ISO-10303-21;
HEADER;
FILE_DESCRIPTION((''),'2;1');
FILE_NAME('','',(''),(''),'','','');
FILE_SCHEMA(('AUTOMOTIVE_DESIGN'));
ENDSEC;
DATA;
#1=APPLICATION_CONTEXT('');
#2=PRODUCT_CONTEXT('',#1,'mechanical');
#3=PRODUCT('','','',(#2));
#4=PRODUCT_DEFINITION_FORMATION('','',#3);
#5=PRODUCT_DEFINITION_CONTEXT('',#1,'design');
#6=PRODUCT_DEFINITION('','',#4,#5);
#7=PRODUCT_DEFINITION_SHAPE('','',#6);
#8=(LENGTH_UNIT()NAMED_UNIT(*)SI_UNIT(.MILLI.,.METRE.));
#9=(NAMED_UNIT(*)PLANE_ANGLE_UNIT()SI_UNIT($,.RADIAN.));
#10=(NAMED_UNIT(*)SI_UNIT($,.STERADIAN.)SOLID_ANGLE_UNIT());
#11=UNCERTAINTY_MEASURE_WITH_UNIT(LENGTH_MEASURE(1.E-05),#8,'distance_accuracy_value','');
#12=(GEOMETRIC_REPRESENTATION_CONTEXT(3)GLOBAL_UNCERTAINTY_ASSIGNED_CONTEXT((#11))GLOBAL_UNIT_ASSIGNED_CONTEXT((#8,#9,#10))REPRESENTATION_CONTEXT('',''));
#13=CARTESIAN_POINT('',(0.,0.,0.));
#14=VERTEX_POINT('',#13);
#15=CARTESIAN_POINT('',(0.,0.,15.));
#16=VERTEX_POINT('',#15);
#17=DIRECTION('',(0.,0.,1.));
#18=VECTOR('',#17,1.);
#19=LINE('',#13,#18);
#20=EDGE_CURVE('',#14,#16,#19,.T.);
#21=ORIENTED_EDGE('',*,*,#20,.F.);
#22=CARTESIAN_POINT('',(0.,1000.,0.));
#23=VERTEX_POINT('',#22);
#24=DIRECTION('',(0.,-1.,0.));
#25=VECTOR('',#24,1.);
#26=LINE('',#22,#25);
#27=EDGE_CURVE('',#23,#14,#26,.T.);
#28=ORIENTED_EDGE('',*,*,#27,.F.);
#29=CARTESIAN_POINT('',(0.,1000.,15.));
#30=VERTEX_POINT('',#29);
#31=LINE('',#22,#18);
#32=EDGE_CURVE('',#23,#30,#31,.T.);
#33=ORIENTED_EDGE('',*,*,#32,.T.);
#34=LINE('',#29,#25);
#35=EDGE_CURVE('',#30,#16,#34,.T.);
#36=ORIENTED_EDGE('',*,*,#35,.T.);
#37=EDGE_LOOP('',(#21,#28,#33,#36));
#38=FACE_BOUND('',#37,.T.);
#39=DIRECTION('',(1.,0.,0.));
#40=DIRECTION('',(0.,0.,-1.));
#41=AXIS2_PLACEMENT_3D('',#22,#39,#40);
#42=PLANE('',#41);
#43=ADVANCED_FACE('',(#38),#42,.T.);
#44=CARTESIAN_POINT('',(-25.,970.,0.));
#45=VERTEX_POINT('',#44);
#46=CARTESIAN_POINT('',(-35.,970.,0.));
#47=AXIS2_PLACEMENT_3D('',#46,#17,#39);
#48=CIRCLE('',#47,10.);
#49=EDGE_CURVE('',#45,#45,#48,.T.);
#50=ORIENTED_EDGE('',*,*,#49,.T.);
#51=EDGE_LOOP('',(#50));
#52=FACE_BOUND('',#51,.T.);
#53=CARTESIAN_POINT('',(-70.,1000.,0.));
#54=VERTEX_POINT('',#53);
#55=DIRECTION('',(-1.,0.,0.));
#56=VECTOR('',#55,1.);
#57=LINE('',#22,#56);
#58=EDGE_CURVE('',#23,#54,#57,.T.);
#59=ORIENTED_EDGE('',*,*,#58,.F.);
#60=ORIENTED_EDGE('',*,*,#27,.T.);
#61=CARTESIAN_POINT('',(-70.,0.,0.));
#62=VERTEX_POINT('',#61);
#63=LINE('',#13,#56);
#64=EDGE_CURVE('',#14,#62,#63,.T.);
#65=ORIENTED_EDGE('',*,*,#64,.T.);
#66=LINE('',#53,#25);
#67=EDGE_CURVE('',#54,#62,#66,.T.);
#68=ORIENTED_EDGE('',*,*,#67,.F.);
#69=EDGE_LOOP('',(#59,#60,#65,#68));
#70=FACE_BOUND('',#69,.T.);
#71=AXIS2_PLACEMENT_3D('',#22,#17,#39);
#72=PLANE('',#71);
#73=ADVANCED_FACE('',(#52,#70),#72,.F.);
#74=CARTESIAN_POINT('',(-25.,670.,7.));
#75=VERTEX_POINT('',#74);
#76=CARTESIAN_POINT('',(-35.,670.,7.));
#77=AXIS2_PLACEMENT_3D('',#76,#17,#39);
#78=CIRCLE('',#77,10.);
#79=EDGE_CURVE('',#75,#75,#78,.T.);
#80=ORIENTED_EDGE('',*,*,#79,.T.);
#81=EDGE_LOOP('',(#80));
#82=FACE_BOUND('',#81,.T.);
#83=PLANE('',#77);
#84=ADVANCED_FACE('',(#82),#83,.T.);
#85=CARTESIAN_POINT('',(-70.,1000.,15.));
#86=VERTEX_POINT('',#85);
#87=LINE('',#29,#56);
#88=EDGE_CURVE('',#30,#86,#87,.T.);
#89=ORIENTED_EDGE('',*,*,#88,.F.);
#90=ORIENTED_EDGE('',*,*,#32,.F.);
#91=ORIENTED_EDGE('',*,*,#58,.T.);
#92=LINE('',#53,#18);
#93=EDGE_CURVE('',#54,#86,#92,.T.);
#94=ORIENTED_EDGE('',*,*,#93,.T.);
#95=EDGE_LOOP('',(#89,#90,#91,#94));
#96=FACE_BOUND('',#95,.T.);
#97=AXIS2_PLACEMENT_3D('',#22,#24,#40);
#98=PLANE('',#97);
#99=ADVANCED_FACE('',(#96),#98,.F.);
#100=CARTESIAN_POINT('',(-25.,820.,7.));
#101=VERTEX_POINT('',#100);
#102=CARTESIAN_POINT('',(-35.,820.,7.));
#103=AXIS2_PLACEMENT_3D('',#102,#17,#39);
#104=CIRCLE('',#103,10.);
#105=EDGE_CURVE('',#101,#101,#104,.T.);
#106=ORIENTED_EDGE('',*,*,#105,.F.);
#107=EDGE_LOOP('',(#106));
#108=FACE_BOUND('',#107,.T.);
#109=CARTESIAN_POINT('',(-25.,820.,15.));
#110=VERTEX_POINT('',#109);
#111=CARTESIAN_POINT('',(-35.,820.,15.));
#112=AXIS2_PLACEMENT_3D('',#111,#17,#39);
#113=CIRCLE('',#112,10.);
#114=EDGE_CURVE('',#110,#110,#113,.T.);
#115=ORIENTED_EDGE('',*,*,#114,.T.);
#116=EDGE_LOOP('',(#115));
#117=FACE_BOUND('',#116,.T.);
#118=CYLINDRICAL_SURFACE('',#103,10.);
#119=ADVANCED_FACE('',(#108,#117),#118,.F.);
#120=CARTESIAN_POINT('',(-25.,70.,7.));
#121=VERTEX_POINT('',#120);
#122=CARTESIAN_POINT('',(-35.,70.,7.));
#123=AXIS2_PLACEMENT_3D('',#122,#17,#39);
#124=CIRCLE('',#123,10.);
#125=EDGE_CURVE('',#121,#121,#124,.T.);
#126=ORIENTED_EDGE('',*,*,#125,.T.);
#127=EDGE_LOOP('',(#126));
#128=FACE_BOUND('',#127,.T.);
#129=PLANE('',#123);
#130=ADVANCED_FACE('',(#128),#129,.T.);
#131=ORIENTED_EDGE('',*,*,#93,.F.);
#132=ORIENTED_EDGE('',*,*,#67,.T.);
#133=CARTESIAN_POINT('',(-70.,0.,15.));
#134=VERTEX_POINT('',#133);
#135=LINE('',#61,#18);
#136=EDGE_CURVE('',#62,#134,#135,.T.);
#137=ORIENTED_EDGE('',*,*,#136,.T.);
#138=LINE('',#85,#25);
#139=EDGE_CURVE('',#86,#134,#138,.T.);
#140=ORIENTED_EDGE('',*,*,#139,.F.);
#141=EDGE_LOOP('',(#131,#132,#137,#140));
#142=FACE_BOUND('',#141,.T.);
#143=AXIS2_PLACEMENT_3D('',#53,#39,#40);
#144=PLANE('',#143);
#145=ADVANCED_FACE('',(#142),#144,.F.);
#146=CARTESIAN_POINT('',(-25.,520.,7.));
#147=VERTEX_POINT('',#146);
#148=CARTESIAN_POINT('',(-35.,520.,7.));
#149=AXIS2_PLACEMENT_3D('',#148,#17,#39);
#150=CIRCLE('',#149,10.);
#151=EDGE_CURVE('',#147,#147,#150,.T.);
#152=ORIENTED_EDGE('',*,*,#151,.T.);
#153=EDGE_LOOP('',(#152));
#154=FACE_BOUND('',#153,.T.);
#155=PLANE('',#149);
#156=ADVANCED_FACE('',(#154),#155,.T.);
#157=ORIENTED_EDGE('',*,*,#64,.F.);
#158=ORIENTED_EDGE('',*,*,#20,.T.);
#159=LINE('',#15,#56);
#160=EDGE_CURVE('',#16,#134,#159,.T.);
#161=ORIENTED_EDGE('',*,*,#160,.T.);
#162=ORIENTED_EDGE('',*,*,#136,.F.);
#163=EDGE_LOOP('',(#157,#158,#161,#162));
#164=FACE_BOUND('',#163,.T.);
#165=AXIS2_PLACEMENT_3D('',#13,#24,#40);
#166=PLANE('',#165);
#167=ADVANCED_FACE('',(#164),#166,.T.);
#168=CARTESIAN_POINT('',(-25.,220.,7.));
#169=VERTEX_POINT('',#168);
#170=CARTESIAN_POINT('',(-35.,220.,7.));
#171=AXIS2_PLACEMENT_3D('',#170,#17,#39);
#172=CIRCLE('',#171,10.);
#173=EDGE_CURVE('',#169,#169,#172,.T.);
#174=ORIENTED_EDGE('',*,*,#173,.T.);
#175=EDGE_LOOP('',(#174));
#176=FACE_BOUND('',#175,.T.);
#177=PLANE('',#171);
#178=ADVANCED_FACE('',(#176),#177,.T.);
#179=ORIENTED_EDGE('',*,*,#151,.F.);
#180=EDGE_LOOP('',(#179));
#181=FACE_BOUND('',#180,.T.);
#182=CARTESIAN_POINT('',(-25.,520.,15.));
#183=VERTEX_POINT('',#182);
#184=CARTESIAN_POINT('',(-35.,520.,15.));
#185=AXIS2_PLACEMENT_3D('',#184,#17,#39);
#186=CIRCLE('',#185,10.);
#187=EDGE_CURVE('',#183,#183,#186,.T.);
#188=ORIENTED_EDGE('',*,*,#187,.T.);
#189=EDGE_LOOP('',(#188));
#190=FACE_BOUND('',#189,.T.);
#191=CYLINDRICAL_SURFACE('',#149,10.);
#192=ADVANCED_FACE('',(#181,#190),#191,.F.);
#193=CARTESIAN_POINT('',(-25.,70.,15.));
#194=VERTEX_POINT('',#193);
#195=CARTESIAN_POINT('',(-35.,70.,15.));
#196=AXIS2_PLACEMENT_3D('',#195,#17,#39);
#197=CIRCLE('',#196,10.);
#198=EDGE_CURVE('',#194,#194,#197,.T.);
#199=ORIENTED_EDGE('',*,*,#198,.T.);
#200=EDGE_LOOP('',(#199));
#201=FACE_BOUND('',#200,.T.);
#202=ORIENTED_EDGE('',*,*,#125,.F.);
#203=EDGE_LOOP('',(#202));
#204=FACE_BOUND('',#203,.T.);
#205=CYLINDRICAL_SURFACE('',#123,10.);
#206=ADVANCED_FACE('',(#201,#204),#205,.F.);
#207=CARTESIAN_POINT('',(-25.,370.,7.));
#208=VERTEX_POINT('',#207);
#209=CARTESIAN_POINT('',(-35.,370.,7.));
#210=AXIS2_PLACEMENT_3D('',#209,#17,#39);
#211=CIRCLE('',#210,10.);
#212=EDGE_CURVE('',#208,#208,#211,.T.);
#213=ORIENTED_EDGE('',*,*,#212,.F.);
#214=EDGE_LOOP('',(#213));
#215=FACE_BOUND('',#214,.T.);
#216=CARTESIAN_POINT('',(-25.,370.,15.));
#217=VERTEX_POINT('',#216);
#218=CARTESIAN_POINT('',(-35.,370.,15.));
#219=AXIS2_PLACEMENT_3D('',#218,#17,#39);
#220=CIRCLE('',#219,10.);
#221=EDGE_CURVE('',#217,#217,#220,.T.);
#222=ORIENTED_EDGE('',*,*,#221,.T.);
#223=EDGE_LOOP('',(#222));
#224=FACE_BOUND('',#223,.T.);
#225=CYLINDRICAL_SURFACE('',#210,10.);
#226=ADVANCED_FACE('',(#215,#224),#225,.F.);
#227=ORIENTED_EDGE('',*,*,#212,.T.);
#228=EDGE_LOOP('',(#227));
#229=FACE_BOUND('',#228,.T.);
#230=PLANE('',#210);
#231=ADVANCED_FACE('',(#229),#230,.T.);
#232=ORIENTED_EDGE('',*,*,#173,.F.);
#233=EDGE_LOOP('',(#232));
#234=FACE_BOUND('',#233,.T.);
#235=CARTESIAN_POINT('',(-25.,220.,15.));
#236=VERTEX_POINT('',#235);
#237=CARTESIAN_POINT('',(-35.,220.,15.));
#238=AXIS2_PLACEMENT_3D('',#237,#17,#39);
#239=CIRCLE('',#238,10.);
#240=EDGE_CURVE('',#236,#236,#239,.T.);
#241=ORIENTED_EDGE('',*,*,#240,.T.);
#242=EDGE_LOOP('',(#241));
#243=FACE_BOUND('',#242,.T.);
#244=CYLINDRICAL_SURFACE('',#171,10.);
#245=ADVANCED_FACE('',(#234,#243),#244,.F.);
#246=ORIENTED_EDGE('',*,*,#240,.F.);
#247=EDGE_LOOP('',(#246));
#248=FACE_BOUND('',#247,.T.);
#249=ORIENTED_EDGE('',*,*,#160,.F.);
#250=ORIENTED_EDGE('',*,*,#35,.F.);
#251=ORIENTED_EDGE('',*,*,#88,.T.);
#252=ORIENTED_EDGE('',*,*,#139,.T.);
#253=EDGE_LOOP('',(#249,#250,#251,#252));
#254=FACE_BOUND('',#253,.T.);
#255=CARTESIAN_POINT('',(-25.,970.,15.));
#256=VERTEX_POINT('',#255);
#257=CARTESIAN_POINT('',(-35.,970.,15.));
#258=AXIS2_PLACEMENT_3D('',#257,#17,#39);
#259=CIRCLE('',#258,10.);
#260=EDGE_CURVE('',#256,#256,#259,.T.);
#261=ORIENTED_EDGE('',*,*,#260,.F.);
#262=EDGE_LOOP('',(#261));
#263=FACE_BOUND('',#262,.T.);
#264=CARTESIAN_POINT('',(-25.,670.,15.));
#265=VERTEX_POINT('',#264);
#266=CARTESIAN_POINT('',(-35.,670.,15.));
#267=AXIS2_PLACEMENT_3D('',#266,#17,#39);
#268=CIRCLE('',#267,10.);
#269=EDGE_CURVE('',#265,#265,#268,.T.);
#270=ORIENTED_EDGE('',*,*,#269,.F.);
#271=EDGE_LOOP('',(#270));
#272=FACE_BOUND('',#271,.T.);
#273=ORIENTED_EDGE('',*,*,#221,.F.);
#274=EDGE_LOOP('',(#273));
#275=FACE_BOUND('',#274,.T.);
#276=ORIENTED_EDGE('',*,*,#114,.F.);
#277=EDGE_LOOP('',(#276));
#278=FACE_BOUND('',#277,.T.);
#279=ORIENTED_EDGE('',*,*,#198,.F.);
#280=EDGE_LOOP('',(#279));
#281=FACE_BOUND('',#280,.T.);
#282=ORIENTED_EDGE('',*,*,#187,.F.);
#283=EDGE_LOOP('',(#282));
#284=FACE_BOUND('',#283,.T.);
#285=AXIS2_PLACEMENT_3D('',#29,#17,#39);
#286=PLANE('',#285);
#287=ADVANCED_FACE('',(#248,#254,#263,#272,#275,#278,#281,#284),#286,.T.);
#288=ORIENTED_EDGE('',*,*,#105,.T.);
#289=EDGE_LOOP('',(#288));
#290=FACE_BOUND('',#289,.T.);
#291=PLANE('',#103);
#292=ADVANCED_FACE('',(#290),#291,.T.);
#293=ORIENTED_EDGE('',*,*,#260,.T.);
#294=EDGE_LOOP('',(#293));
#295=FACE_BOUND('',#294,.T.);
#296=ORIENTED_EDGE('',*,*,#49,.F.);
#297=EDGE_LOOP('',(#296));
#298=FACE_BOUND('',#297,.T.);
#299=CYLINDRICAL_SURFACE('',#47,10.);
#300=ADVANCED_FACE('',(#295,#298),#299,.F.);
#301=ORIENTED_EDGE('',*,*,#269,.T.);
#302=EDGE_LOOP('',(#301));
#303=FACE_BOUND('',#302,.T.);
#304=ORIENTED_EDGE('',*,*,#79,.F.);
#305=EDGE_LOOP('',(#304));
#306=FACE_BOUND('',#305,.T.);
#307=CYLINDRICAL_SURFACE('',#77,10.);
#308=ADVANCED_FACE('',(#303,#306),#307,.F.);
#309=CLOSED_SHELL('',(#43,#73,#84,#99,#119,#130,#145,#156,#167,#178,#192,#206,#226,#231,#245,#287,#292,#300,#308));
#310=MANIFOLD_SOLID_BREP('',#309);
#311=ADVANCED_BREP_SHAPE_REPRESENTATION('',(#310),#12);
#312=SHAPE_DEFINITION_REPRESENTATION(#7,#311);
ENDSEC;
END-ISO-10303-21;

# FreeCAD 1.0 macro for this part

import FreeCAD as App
import Part
import Sketcher
from FreeCAD import Vector

doc = App.newDocument("Part")
params = doc.addObject("Spreadsheet::Sheet", "Params")
for row, (alias, value) in enumerate([
    ("sketch1_width", "70 mm"),
    ("sketch1_height", "15 mm"),
    ("pad1_length", "1000 mm"),
    ("sketch2_diameter", "20 mm"),
    ("pocket1_length", "15 mm"),
    ("sketch3_diameter", "20 mm"),
    ("pocket2_length", "8 mm"),
], start=1):
    params.set(f"A{row}", alias)
    params.set(f"B{row}", "=" + value)
    params.setAlias(f"B{row}", alias)

body = doc.addObject("PartDesign::Body", "Body")

sketch1 = body.newObject("Sketcher::SketchObject", "Sketch")
sketch1.AttachmentSupport = (doc.getObject("XZ_Plane"), [""])
sketch1.MapMode = "FlatFace"
sketch1.addGeometry(Part.LineSegment(Vector(-70, 0, 0), Vector(-70, 15, 0)), False)
sketch1.addGeometry(Part.LineSegment(Vector(-70, 15, 0), Vector(0, 15, 0)), False)
sketch1.addGeometry(Part.LineSegment(Vector(0, 15, 0), Vector(0, 0, 0)), False)
sketch1.addGeometry(Part.LineSegment(Vector(0, 0, 0), Vector(-70, 0, 0)), False)
sketch1.addConstraint(Sketcher.Constraint("Coincident", 0, 2, 1, 1))
sketch1.addConstraint(Sketcher.Constraint("Coincident", 1, 2, 2, 1))
sketch1.addConstraint(Sketcher.Constraint("Coincident", 2, 2, 3, 1))
sketch1.addConstraint(Sketcher.Constraint("Coincident", 3, 2, 0, 1))
sketch1.addConstraint(Sketcher.Constraint("Vertical", 0))
sketch1.addConstraint(Sketcher.Constraint("Horizontal", 1))
sketch1.addConstraint(Sketcher.Constraint("Vertical", 2))
sketch1.addConstraint(Sketcher.Constraint("Horizontal", 3))
sketch1.addConstraint(Sketcher.Constraint("Coincident", 2, 2, -1, 1))
sketch1.addConstraint(Sketcher.Constraint("DistanceX", 1, 1, 1, 2, 70.0))
sketch1.addConstraint(Sketcher.Constraint("DistanceY", 0, 1, 0, 2, 15.0))
sketch1.setExpression("Constraints[9]", "Params.sketch1_width")
sketch1.setExpression("Constraints[10]", "Params.sketch1_height")
pad1 = body.newObject("PartDesign::Pad", "Pad")
pad1.Profile = sketch1
pad1.setExpression("Length", "Params.pad1_length")
pad1.Reversed = True

sketch2 = body.newObject("Sketcher::SketchObject", "Sketch001")
sketch2.AttachmentSupport = (doc.getObject("XY_Plane"), [""])
sketch2.MapMode = "FlatFace"
sketch2.AttachmentOffset = App.Placement(Vector(0, 0, 15), App.Rotation())
sketch2.addGeometry(Part.Circle(Vector(-35, 970, 0), Vector(0, 0, 1), 10), False)
sketch2.addConstraint(Sketcher.Constraint("Diameter", 0, 20.0))
sketch2.addConstraint(Sketcher.Constraint("DistanceX", 0, 3, -1, 1, 35.0))
sketch2.addConstraint(Sketcher.Constraint("DistanceY", -1, 1, 0, 3, 970.0))
sketch2.setExpression("Constraints[0]", "Params.sketch2_diameter")
pocket1 = body.newObject("PartDesign::Pocket", "Pocket")
pocket1.Profile = sketch2
pocket1.setExpression("Length", "Params.pocket1_length")

sketch3 = body.newObject("Sketcher::SketchObject", "Sketch002")
sketch3.AttachmentSupport = (doc.getObject("XY_Plane"), [""])
sketch3.MapMode = "FlatFace"
sketch3.AttachmentOffset = App.Placement(Vector(0, 0, 15), App.Rotation())
sketch3.addGeometry(Part.Circle(Vector(-35, 820, 0), Vector(0, 0, 1), 10), False)
sketch3.addGeometry(Part.Circle(Vector(-35, 670, 0), Vector(0, 0, 1), 10), False)
sketch3.addGeometry(Part.Circle(Vector(-35, 520, 0), Vector(0, 0, 1), 10), False)
sketch3.addGeometry(Part.Circle(Vector(-35, 370, 0), Vector(0, 0, 1), 10), False)
sketch3.addGeometry(Part.Circle(Vector(-35, 220, 0), Vector(0, 0, 1), 10), False)
sketch3.addGeometry(Part.Circle(Vector(-35, 70, 0), Vector(0, 0, 1), 10), False)
sketch3.addConstraint(Sketcher.Constraint("Equal", 0, 1))
sketch3.addConstraint(Sketcher.Constraint("Equal", 1, 2))
sketch3.addConstraint(Sketcher.Constraint("Equal", 2, 3))
sketch3.addConstraint(Sketcher.Constraint("Equal", 3, 4))
sketch3.addConstraint(Sketcher.Constraint("Equal", 4, 5))
sketch3.addConstraint(Sketcher.Constraint("Vertical", 0, 3, 1, 3))
sketch3.addConstraint(Sketcher.Constraint("Vertical", 1, 3, 2, 3))
sketch3.addConstraint(Sketcher.Constraint("Vertical", 2, 3, 3, 3))
sketch3.addConstraint(Sketcher.Constraint("Vertical", 3, 3, 4, 3))
sketch3.addConstraint(Sketcher.Constraint("Vertical", 4, 3, 5, 3))
sketch3.addConstraint(Sketcher.Constraint("Diameter", 0, 20.0))
sketch3.addConstraint(Sketcher.Constraint("DistanceX", 0, 3, -1, 1, 35.0))
sketch3.addConstraint(Sketcher.Constraint("DistanceY", -1, 1, 0, 3, 820.0))
sketch3.addConstraint(Sketcher.Constraint("DistanceY", -1, 1, 1, 3, 670.0))
sketch3.addConstraint(Sketcher.Constraint("DistanceY", -1, 1, 2, 3, 520.0))
sketch3.addConstraint(Sketcher.Constraint("DistanceY", -1, 1, 3, 3, 370.0))
sketch3.addConstraint(Sketcher.Constraint("DistanceY", -1, 1, 4, 3, 220.0))
sketch3.addConstraint(Sketcher.Constraint("DistanceY", -1, 1, 5, 3, 70.0))
sketch3.setExpression("Constraints[10]", "Params.sketch3_diameter")
pocket2 = body.newObject("PartDesign::Pocket", "Pocket001")
pocket2.Profile = sketch3
pocket2.setExpression("Length", "Params.pocket2_length")

doc.recompute()
